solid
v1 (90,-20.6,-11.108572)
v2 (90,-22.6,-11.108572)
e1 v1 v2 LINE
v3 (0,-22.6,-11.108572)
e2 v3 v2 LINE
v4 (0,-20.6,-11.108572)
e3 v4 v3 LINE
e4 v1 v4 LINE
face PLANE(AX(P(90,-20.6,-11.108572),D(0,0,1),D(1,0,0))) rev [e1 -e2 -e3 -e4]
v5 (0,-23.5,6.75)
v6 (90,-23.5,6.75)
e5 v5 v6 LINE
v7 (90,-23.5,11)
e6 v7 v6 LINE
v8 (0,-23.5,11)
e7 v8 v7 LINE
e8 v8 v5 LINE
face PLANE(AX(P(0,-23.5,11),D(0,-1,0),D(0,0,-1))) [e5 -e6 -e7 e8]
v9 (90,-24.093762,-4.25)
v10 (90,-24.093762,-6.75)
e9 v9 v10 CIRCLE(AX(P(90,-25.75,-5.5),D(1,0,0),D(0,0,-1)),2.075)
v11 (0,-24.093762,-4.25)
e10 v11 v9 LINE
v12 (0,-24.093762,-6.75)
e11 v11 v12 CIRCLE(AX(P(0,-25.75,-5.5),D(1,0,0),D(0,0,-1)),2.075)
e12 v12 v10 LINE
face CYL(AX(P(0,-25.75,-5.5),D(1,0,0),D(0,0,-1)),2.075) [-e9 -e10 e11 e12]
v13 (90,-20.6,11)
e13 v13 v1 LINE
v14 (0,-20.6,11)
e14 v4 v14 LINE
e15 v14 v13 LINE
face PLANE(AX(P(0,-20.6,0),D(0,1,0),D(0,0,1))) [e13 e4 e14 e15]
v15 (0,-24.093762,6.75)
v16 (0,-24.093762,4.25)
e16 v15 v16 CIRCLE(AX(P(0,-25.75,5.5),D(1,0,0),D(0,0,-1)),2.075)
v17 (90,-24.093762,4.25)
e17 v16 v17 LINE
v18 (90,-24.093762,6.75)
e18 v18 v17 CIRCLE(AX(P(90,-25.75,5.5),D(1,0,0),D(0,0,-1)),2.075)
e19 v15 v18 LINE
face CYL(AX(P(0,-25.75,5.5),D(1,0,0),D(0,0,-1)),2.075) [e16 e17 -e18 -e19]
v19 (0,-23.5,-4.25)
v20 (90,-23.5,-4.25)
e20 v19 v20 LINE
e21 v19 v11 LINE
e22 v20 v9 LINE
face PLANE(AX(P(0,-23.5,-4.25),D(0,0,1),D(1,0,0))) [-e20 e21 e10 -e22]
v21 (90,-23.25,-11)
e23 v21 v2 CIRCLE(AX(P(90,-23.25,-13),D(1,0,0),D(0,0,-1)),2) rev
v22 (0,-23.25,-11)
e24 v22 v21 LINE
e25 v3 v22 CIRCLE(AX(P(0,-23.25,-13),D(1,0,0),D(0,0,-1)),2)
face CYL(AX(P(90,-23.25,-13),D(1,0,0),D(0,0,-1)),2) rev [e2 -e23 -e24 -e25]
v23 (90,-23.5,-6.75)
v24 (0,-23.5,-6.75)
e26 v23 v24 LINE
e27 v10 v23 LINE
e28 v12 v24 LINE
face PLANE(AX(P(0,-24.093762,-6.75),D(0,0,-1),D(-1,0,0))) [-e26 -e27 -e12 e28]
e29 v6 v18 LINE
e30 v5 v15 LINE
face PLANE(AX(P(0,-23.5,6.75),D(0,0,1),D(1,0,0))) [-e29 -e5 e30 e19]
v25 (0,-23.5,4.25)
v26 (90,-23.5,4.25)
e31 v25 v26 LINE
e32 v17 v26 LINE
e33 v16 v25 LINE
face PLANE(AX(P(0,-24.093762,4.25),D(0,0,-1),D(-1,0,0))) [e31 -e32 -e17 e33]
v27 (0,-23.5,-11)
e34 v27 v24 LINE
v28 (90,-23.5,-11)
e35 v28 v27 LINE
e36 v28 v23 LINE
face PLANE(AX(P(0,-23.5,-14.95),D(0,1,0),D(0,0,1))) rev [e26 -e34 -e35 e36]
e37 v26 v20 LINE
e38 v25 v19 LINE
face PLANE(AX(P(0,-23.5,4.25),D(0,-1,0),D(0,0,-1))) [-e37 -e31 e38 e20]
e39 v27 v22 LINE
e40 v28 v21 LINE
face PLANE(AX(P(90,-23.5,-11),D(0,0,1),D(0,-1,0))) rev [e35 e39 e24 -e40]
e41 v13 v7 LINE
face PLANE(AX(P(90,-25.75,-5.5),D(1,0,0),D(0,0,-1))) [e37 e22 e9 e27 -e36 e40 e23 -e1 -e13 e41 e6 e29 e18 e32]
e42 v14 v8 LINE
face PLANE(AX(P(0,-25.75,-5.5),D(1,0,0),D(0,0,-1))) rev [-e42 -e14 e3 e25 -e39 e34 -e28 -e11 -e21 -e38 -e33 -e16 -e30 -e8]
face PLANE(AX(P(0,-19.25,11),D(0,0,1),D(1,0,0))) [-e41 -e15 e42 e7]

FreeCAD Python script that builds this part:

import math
import FreeCAD as App
import Part
import Sketcher
Q = App.Units.Quantity


def edges_at(feature, points):
    """Names of the edges that pass closest to the given points."""
    edges = feature.Shape.Edges
    near = lambda p: min(range(len(edges)), key=lambda i: edges[i].distToShape(Part.Vertex(*p))[0])
    return sorted({f"Edge{near(p) + 1}" for p in points})


def add_polygon(sketch, points):
    """Adds a closed chain of lines whose ends are joined by coincident constraints."""
    first, n = sketch.GeometryCount, len(points)
    for a, b in zip(points, points[1:] + points[:1]):
        sketch.addGeometry(Part.LineSegment(App.Vector(*a, 0), App.Vector(*b, 0)), False)
    for i in range(n):
        sketch.addConstraint(Sketcher.Constraint("Coincident", first + i, 2, first + (i + 1) % n, 1))

doc = App.newDocument("Part")
body = doc.addObject("PartDesign::Body", "Body")

# Sketch on YZ plane
sketch1 = body.newObject("Sketcher::SketchObject", "Sketch")
sketch1.AttachmentSupport = (doc.getObject("YZ_Plane"), [""])
sketch1.MapMode = "FlatFace"
sketch1.AttachmentOffset = App.Placement(App.Vector(0, 0, 90), App.Rotation())
sketch1.addGeometry([
    Part.LineSegment(App.Vector(-24.1, -6.8, 0), App.Vector(19.2, -6.8, 0)),  # 0
    Part.LineSegment(App.Vector(19.2, -6.8, 0), App.Vector(19.2, 11.6, 0)),  # 1
    Part.ArcOfCircle(Part.Circle(App.Vector(18, 13.2, 0), App.Vector(0, 0, 1), 2.1), math.radians(-53), math.radians(233)),  # 2
    Part.LineSegment(App.Vector(16.8, 11.6, 0), App.Vector(16.8, 11, 0)),  # 3
    Part.LineSegment(App.Vector(16.8, 11, 0), App.Vector(-16.8, 11, 0)),  # 4
    Part.LineSegment(App.Vector(-16.8, 11, 0), App.Vector(-16.8, 11.6, 0)),  # 5
    Part.ArcOfCircle(Part.Circle(App.Vector(-18, 13.2, 0), App.Vector(0, 0, 1), 2.1), math.radians(-53), math.radians(233)),  # 6
    Part.LineSegment(App.Vector(-19.2, 11.6, 0), App.Vector(-19.2, 11, 0)),  # 7
    Part.LineSegment(App.Vector(-19.2, 11, 0), App.Vector(-23.5, 11, 0)),  # 8
    Part.LineSegment(App.Vector(-23.5, 11, 0), App.Vector(-23.5, 6.8, 0)),  # 9
    Part.LineSegment(App.Vector(-23.5, 6.8, 0), App.Vector(-24.1, 6.8, 0)),  # 10
    Part.ArcOfCircle(Part.Circle(App.Vector(-25.8, 5.5, 0), App.Vector(0, 0, 1), 2.1), math.radians(37), math.radians(323)),  # 11
    Part.LineSegment(App.Vector(-24.1, 4.2, 0), App.Vector(-23.5, 4.2, 0)),  # 12
    Part.LineSegment(App.Vector(-23.5, 4.2, 0), App.Vector(-23.5, -4.2, 0)),  # 13
    Part.LineSegment(App.Vector(-23.5, -4.2, 0), App.Vector(-24.1, -4.2, 0)),  # 14
    Part.ArcOfCircle(Part.Circle(App.Vector(-25.8, -5.5, 0), App.Vector(0, 0, 1), 2.1), math.radians(37), math.radians(323)),  # 15
], False)
sketch1.addConstraint([
    Sketcher.Constraint("Coincident", 0, 2, 1, 1),
    Sketcher.Constraint("Coincident", 1, 2, 2, 1),
    Sketcher.Constraint("Coincident", 2, 2, 3, 1),
    Sketcher.Constraint("Coincident", 3, 2, 4, 1),
    Sketcher.Constraint("Coincident", 4, 2, 5, 1),
    Sketcher.Constraint("Coincident", 5, 2, 6, 1),
    Sketcher.Constraint("Coincident", 6, 2, 7, 1),
    Sketcher.Constraint("Coincident", 7, 2, 8, 1),
    Sketcher.Constraint("Coincident", 8, 2, 9, 1),
    Sketcher.Constraint("Coincident", 9, 2, 10, 1),
    Sketcher.Constraint("Coincident", 10, 2, 11, 1),
    Sketcher.Constraint("Coincident", 11, 2, 12, 1),
    Sketcher.Constraint("Coincident", 12, 2, 13, 1),
    Sketcher.Constraint("Coincident", 13, 2, 14, 1),
    Sketcher.Constraint("Coincident", 14, 2, 15, 1),
    Sketcher.Constraint("Coincident", 15, 2, 0, 1),
    Sketcher.Constraint("Horizontal", 0),
    Sketcher.Constraint("Vertical", 1),
    Sketcher.Constraint("Vertical", 3),
    Sketcher.Constraint("Horizontal", 4),
    Sketcher.Constraint("Vertical", 5),
    Sketcher.Constraint("Vertical", 7),
    Sketcher.Constraint("Horizontal", 8),
    Sketcher.Constraint("Vertical", 9),
    Sketcher.Constraint("Horizontal", 10),
    Sketcher.Constraint("Horizontal", 12),
    Sketcher.Constraint("Vertical", 13),
    Sketcher.Constraint("Horizontal", 14),
    Sketcher.Constraint("Equal", 2, 6),
    Sketcher.Constraint("Equal", 6, 11),
    Sketcher.Constraint("Equal", 11, 15),
    Sketcher.Constraint("Symmetric", 2, 3, 6, 3, -2),
    Sketcher.Constraint("Symmetric", 11, 3, 15, 3, -1),
    Sketcher.Constraint("Horizontal", 1, 2, 2, 2),
    Sketcher.Constraint("Horizontal", 2, 2, 5, 2),
    Sketcher.Constraint("Horizontal", 5, 2, 6, 2),
    Sketcher.Constraint("Horizontal", 4, 2, 7, 2),
    Sketcher.Constraint("Vertical", 10, 2, 11, 2),
    Sketcher.Constraint("Vertical", 9, 2, 12, 2),
    Sketcher.Constraint("Vertical", 11, 2, 14, 2),
    Sketcher.Constraint("Vertical", 14, 2, 15, 2),
    Sketcher.Constraint("Equal", 14, 3),
    Sketcher.Constraint("Equal", 8, 9),
    Sketcher.Constraint("DistanceX", 4, 2, 4, 1, Q("33.5 mm")),
    Sketcher.Constraint("DistanceY", 13, 2, 13, 1, Q("8.5 mm")),
    Sketcher.Constraint("DistanceX", -1, 1, 2, 3, Q("18 mm")),
    Sketcher.Constraint("DistanceY", -1, 1, 3, 2, Q("11 mm")),
    Sketcher.Constraint("Radius", 2, Q("2.075 mm")),
    Sketcher.Constraint("DistanceY", 15, 3, 11, 3, Q("11 mm")),
    Sketcher.Constraint("DistanceY", 0, 2, 2, 3, Q("20 mm")),
])
pad1 = body.newObject("PartDesign::Pad", "Pad")
pad1.Profile = sketch1
pad1.Length = 90
pad1.Reversed = True

# Sketch on XZ plane
sketch2 = body.newObject("Sketcher::SketchObject", "Sketch001")
sketch2.AttachmentSupport = (doc.getObject("XZ_Plane"), [""])
sketch2.MapMode = "FlatFace"
sketch2.AttachmentOffset = App.Placement(App.Vector(0, 0, -19.25), App.Rotation())
add_polygon(sketch2, [(90, 11), (90, -7), (0, -7), (0, 11)])  # lines 0-3
sketch2.addConstraint([
    Sketcher.Constraint("Vertical", 0),
    Sketcher.Constraint("Horizontal", 1),
    Sketcher.Constraint("Vertical", 2),
    Sketcher.Constraint("Horizontal", 3),
    Sketcher.Constraint("PointOnObject", 1, 2, -2),
    Sketcher.Constraint("DistanceX", 1, 2, 1, 1, Q("90 mm")),
    Sketcher.Constraint("DistanceY", -1, 1, 2, 2, Q("11 mm")),
    Sketcher.Constraint("DistanceY", 0, 2, 0, 1, Q("17.75 mm")),
])
pad2 = body.newObject("PartDesign::Pad", "Pad001")
pad2.Profile = sketch2
pad2.Length = 8.2
pad2.Reversed = True

# Sketch on XY plane
sketch3 = body.newObject("Sketcher::SketchObject", "Sketch002")
sketch3.AttachmentSupport = (doc.getObject("XY_Plane"), [""])
sketch3.MapMode = "FlatFace"
sketch3.AttachmentOffset = App.Placement(App.Vector(0, 0, -6.75), App.Rotation())
add_polygon(sketch3, [(90, 27), (90, -24), (0, -24), (0, 27)])  # lines 0-3
sketch3.addConstraint([
    Sketcher.Constraint("Vertical", 0),
    Sketcher.Constraint("Horizontal", 1),
    Sketcher.Constraint("Vertical", 2),
    Sketcher.Constraint("Horizontal", 3),
    Sketcher.Constraint("PointOnObject", 1, 2, -2),
    Sketcher.Constraint("DistanceX", 1, 2, 1, 1, Q("90 mm")),
    Sketcher.Constraint("DistanceY", 0, 2, 0, 1, Q("50.95 mm")),
    Sketcher.Constraint("DistanceY", 0, 2, -1, 1, Q("23.5 mm")),
])
pad3 = body.newObject("PartDesign::Pad", "Pad002")
pad3.Profile = sketch3
pad3.Length = 8.2
pad3.Reversed = True

# Sketch on YZ plane
sketch4 = body.newObject("Sketcher::SketchObject", "Sketch003")
sketch4.AttachmentSupport = (doc.getObject("YZ_Plane"), [""])
sketch4.MapMode = "FlatFace"
add_polygon(sketch4, [(14.8, -14.9), (-14.8, -14.9), (-14.8, -11), (14.8, -11)])  # lines 0-3
sketch4.addConstraint([
    Sketcher.Constraint("Horizontal", 0),
    Sketcher.Constraint("Vertical", 1),
    Sketcher.Constraint("Horizontal", 2),
    Sketcher.Constraint("Vertical", 3),
    Sketcher.Constraint("DistanceX", 0, 2, 0, 1, Q("29.5 mm")),
    Sketcher.Constraint("DistanceY", 1, 2, -1, 1, Q("11 mm")),
    Sketcher.Constraint("DistanceY", 1, 1, 1, 2, Q("3.95 mm")),
    Sketcher.Constraint("DistanceX", 0, 2, -1, 1, Q("14.75 mm")),
])
pocket1 = body.newObject("PartDesign::Pocket", "Pocket")
pocket1.Profile = sketch4
pocket1.Type = "ThroughAll"
pocket1.Reversed = True

# Sketch on YZ plane
sketch5 = body.newObject("Sketcher::SketchObject", "Sketch004")
sketch5.AttachmentSupport = (doc.getObject("YZ_Plane"), [""])
sketch5.MapMode = "FlatFace"
add_polygon(sketch5, [(27.4, -14.9), (21.2, -14.9), (21.2, -11), (27.4, -11)])  # lines 0-3
sketch5.addConstraint([
    Sketcher.Constraint("Horizontal", 0),
    Sketcher.Constraint("Vertical", 1),
    Sketcher.Constraint("Horizontal", 2),
    Sketcher.Constraint("Vertical", 3),
    Sketcher.Constraint("DistanceX", 0, 2, 0, 1, Q("6.2 mm")),
    Sketcher.Constraint("DistanceY", 1, 2, -1, 1, Q("11 mm")),
    Sketcher.Constraint("DistanceY", 1, 1, 1, 2, Q("3.95 mm")),
    Sketcher.Constraint("DistanceX", -1, 1, 0, 2, Q("21.25 mm")),
])
pocket2 = body.newObject("PartDesign::Pocket", "Pocket001")
pocket2.Profile = sketch5
pocket2.Type = "ThroughAll"
pocket2.Reversed = True

# Sketch on YZ plane
sketch6 = body.newObject("Sketcher::SketchObject", "Sketch005")
sketch6.AttachmentSupport = (doc.getObject("YZ_Plane"), [""])
sketch6.MapMode = "FlatFace"
add_polygon(sketch6, [(27.4, -11), (23.5, -11), (23.5, -8.8), (27.4, -8.8)])  # lines 0-3
sketch6.addConstraint([
    Sketcher.Constraint("Horizontal", 0),
    Sketcher.Constraint("Vertical", 1),
    Sketcher.Constraint("Horizontal", 2),
    Sketcher.Constraint("Vertical", 3),
    Sketcher.Constraint("DistanceY", 0, 2, -1, 1, Q("11 mm")),
    Sketcher.Constraint("DistanceX", 0, 2, 0, 1, Q("3.95 mm")),
    Sketcher.Constraint("DistanceY", 1, 1, 1, 2, Q("2.25 mm")),
    Sketcher.Constraint("DistanceX", -1, 1, 0, 2, Q("23.5 mm")),
])
pocket3 = body.newObject("PartDesign::Pocket", "Pocket002")
pocket3.Profile = sketch6
pocket3.Type = "ThroughAll"
pocket3.Reversed = True

# Sketch on YZ plane
sketch7 = body.newObject("Sketcher::SketchObject", "Sketch006")
sketch7.AttachmentSupport = (doc.getObject("YZ_Plane"), [""])
sketch7.MapMode = "FlatFace"
add_polygon(sketch7, [(27.4, -2.2), (23.5, -2.2), (23.5, 2.2), (27.4, 2.2)])  # lines 0-3
sketch7.addConstraint([
    Sketcher.Constraint("Horizontal", 0),
    Sketcher.Constraint("Vertical", 1),
    Sketcher.Constraint("Horizontal", 2),
    Sketcher.Constraint("Vertical", 3),
    Sketcher.Constraint("DistanceY", 1, 1, 1, 2, Q("4.5 mm")),
    Sketcher.Constraint("DistanceX", 0, 2, 0, 1, Q("3.95 mm")),
    Sketcher.Constraint("DistanceX", -1, 1, 0, 2, Q("23.5 mm")),
    Sketcher.Constraint("DistanceY", 0, 2, -1, 1, Q("2.25 mm")),
])
pocket4 = body.newObject("PartDesign::Pocket", "Pocket003")
pocket4.Profile = sketch7
pocket4.Type = "ThroughAll"
pocket4.Reversed = True

# Sketch on YZ plane
sketch8 = body.newObject("Sketcher::SketchObject", "Sketch007")
sketch8.AttachmentSupport = (doc.getObject("YZ_Plane"), [""])
sketch8.MapMode = "FlatFace"
add_polygon(sketch8, [(27.4, 8.8), (23.5, 8.8), (23.5, 11), (27.4, 11)])  # lines 0-3
sketch8.addConstraint([
    Sketcher.Constraint("Horizontal", 0),
    Sketcher.Constraint("Vertical", 1),
    Sketcher.Constraint("Horizontal", 2),
    Sketcher.Constraint("Vertical", 3),
    Sketcher.Constraint("DistanceY", -1, 1, 1, 2, Q("11 mm")),
    Sketcher.Constraint("DistanceX", 0, 2, 0, 1, Q("3.95 mm")),
    Sketcher.Constraint("DistanceY", 1, 1, 1, 2, Q("2.25 mm")),
    Sketcher.Constraint("DistanceX", -1, 1, 0, 2, Q("23.5 mm")),
])
pocket5 = body.newObject("PartDesign::Pocket", "Pocket004")
pocket5.Profile = sketch8
pocket5.Type = "ThroughAll"
pocket5.Reversed = True

# Sketch on YZ plane
sketch9 = body.newObject("Sketcher::SketchObject", "Sketch008")
sketch9.AttachmentSupport = (doc.getObject("YZ_Plane"), [""])
sketch9.MapMode = "FlatFace"
add_polygon(sketch9, [(-21.2, -14.9), (-23.5, -14.9), (-23.5, -11), (-21.2, -11)])  # lines 0-3
sketch9.addConstraint([
    Sketcher.Constraint("Horizontal", 0),
    Sketcher.Constraint("Vertical", 1),
    Sketcher.Constraint("Horizontal", 2),
    Sketcher.Constraint("Vertical", 3),
    Sketcher.Constraint("DistanceY", 1, 2, -1, 1, Q("11 mm")),
    Sketcher.Constraint("DistanceX", 0, 2, 0, 1, Q("2.25 mm")),
    Sketcher.Constraint("DistanceY", 1, 1, 1, 2, Q("3.95 mm")),
    Sketcher.Constraint("DistanceX", 0, 2, -1, 1, Q("23.5 mm")),
])
pocket6 = body.newObject("PartDesign::Pocket", "Pocket005")
pocket6.Profile = sketch9
pocket6.Type = "ThroughAll"
pocket6.Reversed = True

# Sketch on YZ plane
sketch10 = body.newObject("Sketcher::SketchObject", "Sketch009")
sketch10.AttachmentSupport = (doc.getObject("YZ_Plane"), [""])
sketch10.MapMode = "FlatFace"
sketch10.AttachmentOffset = App.Placement(App.Vector(0, 0, 90), App.Rotation())
add_polygon(sketch10, [(23, 10), (-23, 10), (-23, -10), (23, -10)])  # lines 0-3
sketch10.addConstraint([
    Sketcher.Constraint("Horizontal", 0),
    Sketcher.Constraint("Vertical", 1),
    Sketcher.Constraint("Horizontal", 2),
    Sketcher.Constraint("Vertical", 3),
    Sketcher.Constraint("Symmetric", 0, 2, 2, 2, -1, 1),
    Sketcher.Constraint("DistanceX", 0, 2, 0, 1, Q("45.2 mm")),
    Sketcher.Constraint("DistanceY", 1, 2, 1, 1, Q("20.2 mm")),
])
pocket7 = body.newObject("PartDesign::Pocket", "Pocket006")
pocket7.Profile = sketch10
pocket7.Length = 86

# Sketch on YZ plane
sketch11 = body.newObject("Sketcher::SketchObject", "Sketch010")
sketch11.AttachmentSupport = (doc.getObject("YZ_Plane"), [""])
sketch11.MapMode = "FlatFace"
sketch11.AttachmentOffset = App.Placement(App.Vector(0, 0, 90), App.Rotation())
sketch11.addGeometry([
    Part.Circle(App.Vector(-25.8, -5.5, 0), App.Vector(0, 0, 1), 1.2),
    Part.Circle(App.Vector(-18, 13.2, 0), App.Vector(0, 0, 1), 1.2),
    Part.Circle(App.Vector(-25.8, 5.5, 0), App.Vector(0, 0, 1), 1.2),
    Part.Circle(App.Vector(18, 13.2, 0), App.Vector(0, 0, 1), 1.2),
], False)
sketch11.addConstraint([
    Sketcher.Constraint("Equal", 0, 1),
    Sketcher.Constraint("Equal", 1, 2),
    Sketcher.Constraint("Equal", 2, 3),
    Sketcher.Constraint("Symmetric", 1, 3, 3, 3, -2),
    Sketcher.Constraint("Symmetric", 0, 3, 2, 3, -1),
    Sketcher.Constraint("Diameter", 0, Q("2.5 mm")),
    Sketcher.Constraint("DistanceX", 1, 3, -1, 1, Q("18 mm")),
    Sketcher.Constraint("DistanceY", 0, 3, 2, 3, Q("11 mm")),
    Sketcher.Constraint("DistanceX", 0, 3, -1, 1, Q("25.75 mm")),
    Sketcher.Constraint("DistanceY", -1, 1, 1, 3, Q("13.25 mm")),
])
doc.recompute()
hole = body.newObject("PartDesign::Hole", "Hole")
hole.Profile = sketch11
hole.ThreadType = "None"
hole.Diameter = 2.5
hole.DepthType = "ThroughAll"

# Sketch on YZ plane
sketch12 = body.newObject("Sketcher::SketchObject", "Sketch011")
sketch12.AttachmentSupport = (doc.getObject("YZ_Plane"), [""])
sketch12.MapMode = "FlatFace"
sketch12.addGeometry([
    Part.Circle(App.Vector(-18, -13.2, 0), App.Vector(0, 0, 1), 2.2),
    Part.Circle(App.Vector(18, -13.2, 0), App.Vector(0, 0, 1), 2.2),
    Part.Circle(App.Vector(25.8, -5.5, 0), App.Vector(0, 0, 1), 2.2),
    Part.Circle(App.Vector(25.8, 5.5, 0), App.Vector(0, 0, 1), 2.2),
], False)
sketch12.addConstraint([
    Sketcher.Constraint("Equal", 0, 1),
    Sketcher.Constraint("Equal", 1, 2),
    Sketcher.Constraint("Equal", 2, 3),
    Sketcher.Constraint("Symmetric", 0, 3, 1, 3, -2),
    Sketcher.Constraint("Symmetric", 2, 3, 3, 3, -1),
    Sketcher.Constraint("Diameter", 0, Q("4.5 mm")),
    Sketcher.Constraint("DistanceX", 0, 3, -1, 1, Q("18 mm")),
    Sketcher.Constraint("DistanceY", 2, 3, 3, 3, Q("11 mm")),
    Sketcher.Constraint("DistanceY", 0, 3, -1, 1, Q("13.25 mm")),
    Sketcher.Constraint("DistanceX", -1, 1, 2, 3, Q("25.75 mm")),
])
doc.recompute()
hole2 = body.newObject("PartDesign::Hole", "Hole001")
hole2.Profile = sketch12
hole2.ThreadType = "None"
hole2.Diameter = 4.5
hole2.DepthType = "ThroughAll"
hole2.Reversed = True

# Sketch on YZ plane
sketch13 = body.newObject("Sketcher::SketchObject", "Sketch012")
sketch13.AttachmentSupport = (doc.getObject("YZ_Plane"), [""])
sketch13.MapMode = "FlatFace"
sketch13.addGeometry(Part.Circle(App.Vector(0, 0, 0), App.Vector(0, 0, 1), 4.2), False)
sketch13.addConstraint([
    Sketcher.Constraint("Coincident", 0, 3, -1, 1),
    Sketcher.Constraint("Diameter", 0, Q("8.3 mm")),
])
doc.recompute()
hole3 = body.newObject("PartDesign::Hole", "Hole002")
hole3.Profile = sketch13
hole3.ThreadType = "None"
hole3.Diameter = 8.3
hole3.DepthType = "Dimension"
hole3.Depth = 3.2
hole3.DrillPoint = "Flat"
hole3.Reversed = True
doc.recompute()

fillet = body.newObject("PartDesign::Fillet", "Fillet")
fillet.Base = (hole3, edges_at(hole3, [(45, 23.5, 8.75)]))
fillet.Radius = 2
doc.recompute()

fillet2 = body.newObject("PartDesign::Fillet", "Fillet001")
fillet2.Base = (fillet, edges_at(fillet, [
    (45, 23.5, -8.75),
    (45, 23.5, 2.25),
    (45, 23.5, -2.25),
    (45, -21.25, -11),
    (4, 0, -10.1),
    (4, -22.6, 0),
    (4, 0, 10.1),
    (4, 22.6, 0),
    (45, 14.75, -11),
    (45, -14.75, -11),
    (45, 21.25, -11),
]))
fillet2.Radius = 2

# Sketch on YZ plane
sketch14 = body.newObject("Sketcher::SketchObject", "Sketch013")
sketch14.AttachmentSupport = (doc.getObject("YZ_Plane"), [""])
sketch14.MapMode = "FlatFace"
sketch14.addGeometry([
    Part.Circle(App.Vector(-25.8, -5.5, 0), App.Vector(0, 0, 1), 1.2),
    Part.Circle(App.Vector(-25.8, 5.5, 0), App.Vector(0, 0, 1), 1.2),
    Part.Circle(App.Vector(-18, 13.2, 0), App.Vector(0, 0, 1), 1.2),
    Part.Circle(App.Vector(18, 13.2, 0), App.Vector(0, 0, 1), 1.2),
], False)
sketch14.addConstraint([
    Sketcher.Constraint("Equal", 0, 1),
    Sketcher.Constraint("Equal", 1, 2),
    Sketcher.Constraint("Equal", 2, 3),
    Sketcher.Constraint("Symmetric", 2, 3, 3, 3, -2),
    Sketcher.Constraint("Symmetric", 0, 3, 1, 3, -1),
    Sketcher.Constraint("Diameter", 0, Q("2.5 mm")),
    Sketcher.Constraint("DistanceX", 2, 3, -1, 1, Q("18 mm")),
    Sketcher.Constraint("DistanceY", 0, 3, 1, 3, Q("11 mm")),
    Sketcher.Constraint("DistanceX", 0, 3, -1, 1, Q("25.75 mm")),
    Sketcher.Constraint("DistanceY", -1, 1, 2, 3, Q("13.25 mm")),
])
pad4 = body.newObject("PartDesign::Pad", "Pad003")
pad4.Profile = sketch14
pad4.Length = 90

# Sketch on YZ plane
sketch15 = body.newObject("Sketcher::SketchObject", "Sketch014")
sketch15.AttachmentSupport = (doc.getObject("YZ_Plane"), [""])
sketch15.MapMode = "FlatFace"
sketch15.AttachmentOffset = App.Placement(App.Vector(0, 0, 100), App.Rotation())
sketch15.addGeometry(Part.Circle(App.Vector(0, 0, 0), App.Vector(0, 0, 1), 4.2), False)
sketch15.addConstraint([
    Sketcher.Constraint("Coincident", 0, 3, -1, 1),
    Sketcher.Constraint("Diameter", 0, Q("8.3 mm")),
])
pocket8 = body.newObject("PartDesign::Pocket", "Pocket007")
pocket8.Profile = sketch15
pocket8.Length = 100

# Sketch on YZ plane
sketch16 = body.newObject("Sketcher::SketchObject", "Sketch015")
sketch16.AttachmentSupport = (doc.getObject("YZ_Plane"), [""])
sketch16.MapMode = "FlatFace"
sketch16.AttachmentOffset = App.Placement(App.Vector(0, 0, 90), App.Rotation())
add_polygon(sketch16, [(-23, 27), (-23, -30), (40, -30), (40, 27)])  # lines 0-3
sketch16.addConstraint([
    Sketcher.Constraint("Vertical", 0),
    Sketcher.Constraint("Horizontal", 1),
    Sketcher.Constraint("Vertical", 2),
    Sketcher.Constraint("Horizontal", 3),
    Sketcher.Constraint("DistanceX", 0, 2, -1, 1, Q("22.6 mm")),
    Sketcher.Constraint("DistanceY", 0, 2, 0, 1, Q("56.656249 mm")),
    Sketcher.Constraint("DistanceX", 1, 1, 1, 2, Q("62.891613 mm")),
    Sketcher.Constraint("DistanceY", 0, 2, -1, 1, Q("29.62776 mm")),
])
pocket9 = body.newObject("PartDesign::Pocket", "Pocket008")
pocket9.Profile = sketch16
pocket9.Length = 106

# Sketch on XZ plane
sketch17 = body.newObject("Sketcher::SketchObject", "Sketch016")
sketch17.AttachmentSupport = (doc.getObject("XZ_Plane"), [""])
sketch17.MapMode = "FlatFace"
sketch17.AttachmentOffset = App.Placement(App.Vector(0, 0, 22.6), App.Rotation())
add_polygon(sketch17, [(0, -11), (0, 11), (90, 11), (90, -11)])  # lines 0-3
sketch17.addConstraint([
    Sketcher.Constraint("Vertical", 0),
    Sketcher.Constraint("Horizontal", 1),
    Sketcher.Constraint("Vertical", 2),
    Sketcher.Constraint("Horizontal", 3),
    Sketcher.Constraint("PointOnObject", 0, 2, -2),
    Sketcher.Constraint("DistanceX", 1, 1, 1, 2, Q("90 mm")),
    Sketcher.Constraint("DistanceY", -1, 1, 0, 2, Q("11 mm")),
    Sketcher.Constraint("DistanceY", 0, 1, 0, 2, Q("22.108572 mm")),
])
pad5 = body.newObject("PartDesign::Pad", "Pad004")
pad5.Profile = sketch17
pad5.Length = 2
pad5.Reversed = True

doc.recompute()
